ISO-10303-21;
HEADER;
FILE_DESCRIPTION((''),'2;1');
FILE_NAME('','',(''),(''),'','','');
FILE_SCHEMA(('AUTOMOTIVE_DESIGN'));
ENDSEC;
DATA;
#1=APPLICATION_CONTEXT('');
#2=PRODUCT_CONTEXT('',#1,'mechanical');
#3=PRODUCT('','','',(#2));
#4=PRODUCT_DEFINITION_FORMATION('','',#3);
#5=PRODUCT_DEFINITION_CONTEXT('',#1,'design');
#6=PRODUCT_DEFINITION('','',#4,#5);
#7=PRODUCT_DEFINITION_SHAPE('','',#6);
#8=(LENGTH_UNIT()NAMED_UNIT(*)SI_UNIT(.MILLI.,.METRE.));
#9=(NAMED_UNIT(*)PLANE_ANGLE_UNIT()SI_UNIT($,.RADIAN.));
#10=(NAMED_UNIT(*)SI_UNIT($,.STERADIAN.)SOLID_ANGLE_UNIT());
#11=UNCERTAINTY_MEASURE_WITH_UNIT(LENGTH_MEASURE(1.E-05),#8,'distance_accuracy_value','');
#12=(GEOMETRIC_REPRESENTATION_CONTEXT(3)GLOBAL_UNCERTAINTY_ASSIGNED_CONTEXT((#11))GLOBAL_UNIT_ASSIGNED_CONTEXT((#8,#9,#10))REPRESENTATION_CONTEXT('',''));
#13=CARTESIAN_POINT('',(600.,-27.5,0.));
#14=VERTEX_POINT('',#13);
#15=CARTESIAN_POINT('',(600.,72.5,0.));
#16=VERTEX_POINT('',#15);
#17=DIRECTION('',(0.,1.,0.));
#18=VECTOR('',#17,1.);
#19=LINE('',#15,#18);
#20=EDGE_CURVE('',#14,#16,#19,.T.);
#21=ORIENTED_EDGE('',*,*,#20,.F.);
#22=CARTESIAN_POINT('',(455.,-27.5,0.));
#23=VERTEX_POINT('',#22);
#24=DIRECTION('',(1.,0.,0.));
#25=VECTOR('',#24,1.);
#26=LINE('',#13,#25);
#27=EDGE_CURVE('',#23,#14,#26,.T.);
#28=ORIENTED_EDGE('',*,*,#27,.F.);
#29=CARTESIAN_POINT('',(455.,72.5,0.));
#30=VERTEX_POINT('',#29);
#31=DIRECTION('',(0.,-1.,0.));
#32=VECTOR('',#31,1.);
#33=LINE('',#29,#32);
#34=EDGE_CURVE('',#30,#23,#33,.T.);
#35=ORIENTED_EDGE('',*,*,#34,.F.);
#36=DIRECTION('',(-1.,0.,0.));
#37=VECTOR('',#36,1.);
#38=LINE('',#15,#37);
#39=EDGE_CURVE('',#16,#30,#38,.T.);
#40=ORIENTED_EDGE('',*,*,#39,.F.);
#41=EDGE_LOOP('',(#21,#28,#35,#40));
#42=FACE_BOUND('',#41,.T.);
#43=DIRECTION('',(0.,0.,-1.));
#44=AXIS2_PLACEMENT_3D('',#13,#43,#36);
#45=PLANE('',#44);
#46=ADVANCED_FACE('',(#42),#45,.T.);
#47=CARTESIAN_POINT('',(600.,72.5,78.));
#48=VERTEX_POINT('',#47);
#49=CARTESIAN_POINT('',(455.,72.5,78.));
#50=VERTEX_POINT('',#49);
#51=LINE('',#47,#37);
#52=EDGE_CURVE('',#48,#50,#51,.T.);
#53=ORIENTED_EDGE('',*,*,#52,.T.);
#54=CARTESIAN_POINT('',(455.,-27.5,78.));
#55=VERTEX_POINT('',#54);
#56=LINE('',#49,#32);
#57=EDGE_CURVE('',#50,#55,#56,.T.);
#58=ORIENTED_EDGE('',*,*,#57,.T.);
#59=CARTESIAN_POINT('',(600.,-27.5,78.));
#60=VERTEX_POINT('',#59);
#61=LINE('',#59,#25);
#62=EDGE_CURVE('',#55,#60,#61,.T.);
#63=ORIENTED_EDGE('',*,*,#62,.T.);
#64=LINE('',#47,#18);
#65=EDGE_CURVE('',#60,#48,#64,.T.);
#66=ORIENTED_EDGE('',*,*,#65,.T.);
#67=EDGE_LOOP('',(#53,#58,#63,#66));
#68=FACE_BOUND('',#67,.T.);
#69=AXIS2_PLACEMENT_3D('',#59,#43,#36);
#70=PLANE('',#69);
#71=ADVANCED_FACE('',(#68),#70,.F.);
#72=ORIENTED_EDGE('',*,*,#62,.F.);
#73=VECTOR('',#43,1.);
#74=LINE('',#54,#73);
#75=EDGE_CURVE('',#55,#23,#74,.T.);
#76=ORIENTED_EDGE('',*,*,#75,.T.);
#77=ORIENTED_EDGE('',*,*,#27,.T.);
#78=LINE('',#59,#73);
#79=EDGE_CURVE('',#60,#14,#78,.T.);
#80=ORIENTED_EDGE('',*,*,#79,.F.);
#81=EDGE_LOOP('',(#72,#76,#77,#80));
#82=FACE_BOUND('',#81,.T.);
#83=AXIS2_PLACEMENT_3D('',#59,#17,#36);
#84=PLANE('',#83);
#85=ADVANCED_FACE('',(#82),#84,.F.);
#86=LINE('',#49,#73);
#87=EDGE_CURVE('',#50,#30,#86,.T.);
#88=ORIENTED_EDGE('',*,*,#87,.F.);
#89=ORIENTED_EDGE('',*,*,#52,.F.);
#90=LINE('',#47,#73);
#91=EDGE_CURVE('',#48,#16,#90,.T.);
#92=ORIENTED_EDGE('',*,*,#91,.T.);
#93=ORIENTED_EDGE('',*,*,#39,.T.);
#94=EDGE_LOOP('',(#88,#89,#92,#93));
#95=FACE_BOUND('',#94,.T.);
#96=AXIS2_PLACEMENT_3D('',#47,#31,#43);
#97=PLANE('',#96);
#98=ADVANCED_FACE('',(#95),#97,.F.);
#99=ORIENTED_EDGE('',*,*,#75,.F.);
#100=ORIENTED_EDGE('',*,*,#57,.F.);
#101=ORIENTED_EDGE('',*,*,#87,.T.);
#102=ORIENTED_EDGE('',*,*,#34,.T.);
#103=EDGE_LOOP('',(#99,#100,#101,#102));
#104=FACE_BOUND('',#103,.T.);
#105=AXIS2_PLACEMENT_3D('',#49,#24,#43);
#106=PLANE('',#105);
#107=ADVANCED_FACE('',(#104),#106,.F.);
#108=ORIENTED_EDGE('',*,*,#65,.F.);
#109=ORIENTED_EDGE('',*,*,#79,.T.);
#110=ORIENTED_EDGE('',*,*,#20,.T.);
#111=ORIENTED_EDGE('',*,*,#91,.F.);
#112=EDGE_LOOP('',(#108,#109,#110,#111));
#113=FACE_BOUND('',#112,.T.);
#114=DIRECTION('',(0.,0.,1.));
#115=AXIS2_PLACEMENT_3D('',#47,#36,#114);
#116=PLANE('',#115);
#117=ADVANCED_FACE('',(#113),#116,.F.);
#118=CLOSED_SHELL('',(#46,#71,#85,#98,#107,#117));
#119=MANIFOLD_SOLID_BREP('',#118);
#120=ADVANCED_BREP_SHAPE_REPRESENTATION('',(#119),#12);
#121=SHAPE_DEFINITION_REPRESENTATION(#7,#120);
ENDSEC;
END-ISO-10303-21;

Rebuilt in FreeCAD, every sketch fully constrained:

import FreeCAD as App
import Part
import Sketcher
from FreeCAD import Vector
Q = App.Units.Quantity

doc = App.newDocument("Part")
body = doc.addObject("PartDesign::Body", "Body")

sketch1 = body.newObject("Sketcher::SketchObject", "Sketch")
sketch1.AttachmentSupport = (doc.getObject("XY_Plane"), [""])
sketch1.MapMode = "FlatFace"
sketch1.addGeometry([
    Part.LineSegment(Vector(455, 72.5, 0), Vector(455, -27.5, 0)),
    Part.LineSegment(Vector(455, -27.5, 0), Vector(600, -27.5, 0)),
    Part.LineSegment(Vector(600, -27.5, 0), Vector(600, 72.5, 0)),
    Part.LineSegment(Vector(600, 72.5, 0), Vector(455, 72.5, 0)),
], False)
sketch1.addConstraint([
    Sketcher.Constraint("Coincident", 0, 2, 1, 1),
    Sketcher.Constraint("Coincident", 1, 2, 2, 1),
    Sketcher.Constraint("Coincident", 2, 2, 3, 1),
    Sketcher.Constraint("Coincident", 3, 2, 0, 1),
    Sketcher.Constraint("Vertical", 0),
    Sketcher.Constraint("Horizontal", 1),
    Sketcher.Constraint("Vertical", 2),
    Sketcher.Constraint("Horizontal", 3),
    Sketcher.Constraint("DistanceX", 1, 1, 1, 2, Q("145 mm")),
    Sketcher.Constraint("DistanceY", 0, 2, 0, 1, Q("100 mm")),
    Sketcher.Constraint("DistanceX", -1, 1, 0, 2, Q("455 mm")),
    Sketcher.Constraint("DistanceY", 0, 2, -1, 1, Q("27.5 mm")),
])
pad1 = body.newObject("PartDesign::Pad", "Pad")
pad1.Profile = sketch1
pad1.Length = 78

doc.recompute()
